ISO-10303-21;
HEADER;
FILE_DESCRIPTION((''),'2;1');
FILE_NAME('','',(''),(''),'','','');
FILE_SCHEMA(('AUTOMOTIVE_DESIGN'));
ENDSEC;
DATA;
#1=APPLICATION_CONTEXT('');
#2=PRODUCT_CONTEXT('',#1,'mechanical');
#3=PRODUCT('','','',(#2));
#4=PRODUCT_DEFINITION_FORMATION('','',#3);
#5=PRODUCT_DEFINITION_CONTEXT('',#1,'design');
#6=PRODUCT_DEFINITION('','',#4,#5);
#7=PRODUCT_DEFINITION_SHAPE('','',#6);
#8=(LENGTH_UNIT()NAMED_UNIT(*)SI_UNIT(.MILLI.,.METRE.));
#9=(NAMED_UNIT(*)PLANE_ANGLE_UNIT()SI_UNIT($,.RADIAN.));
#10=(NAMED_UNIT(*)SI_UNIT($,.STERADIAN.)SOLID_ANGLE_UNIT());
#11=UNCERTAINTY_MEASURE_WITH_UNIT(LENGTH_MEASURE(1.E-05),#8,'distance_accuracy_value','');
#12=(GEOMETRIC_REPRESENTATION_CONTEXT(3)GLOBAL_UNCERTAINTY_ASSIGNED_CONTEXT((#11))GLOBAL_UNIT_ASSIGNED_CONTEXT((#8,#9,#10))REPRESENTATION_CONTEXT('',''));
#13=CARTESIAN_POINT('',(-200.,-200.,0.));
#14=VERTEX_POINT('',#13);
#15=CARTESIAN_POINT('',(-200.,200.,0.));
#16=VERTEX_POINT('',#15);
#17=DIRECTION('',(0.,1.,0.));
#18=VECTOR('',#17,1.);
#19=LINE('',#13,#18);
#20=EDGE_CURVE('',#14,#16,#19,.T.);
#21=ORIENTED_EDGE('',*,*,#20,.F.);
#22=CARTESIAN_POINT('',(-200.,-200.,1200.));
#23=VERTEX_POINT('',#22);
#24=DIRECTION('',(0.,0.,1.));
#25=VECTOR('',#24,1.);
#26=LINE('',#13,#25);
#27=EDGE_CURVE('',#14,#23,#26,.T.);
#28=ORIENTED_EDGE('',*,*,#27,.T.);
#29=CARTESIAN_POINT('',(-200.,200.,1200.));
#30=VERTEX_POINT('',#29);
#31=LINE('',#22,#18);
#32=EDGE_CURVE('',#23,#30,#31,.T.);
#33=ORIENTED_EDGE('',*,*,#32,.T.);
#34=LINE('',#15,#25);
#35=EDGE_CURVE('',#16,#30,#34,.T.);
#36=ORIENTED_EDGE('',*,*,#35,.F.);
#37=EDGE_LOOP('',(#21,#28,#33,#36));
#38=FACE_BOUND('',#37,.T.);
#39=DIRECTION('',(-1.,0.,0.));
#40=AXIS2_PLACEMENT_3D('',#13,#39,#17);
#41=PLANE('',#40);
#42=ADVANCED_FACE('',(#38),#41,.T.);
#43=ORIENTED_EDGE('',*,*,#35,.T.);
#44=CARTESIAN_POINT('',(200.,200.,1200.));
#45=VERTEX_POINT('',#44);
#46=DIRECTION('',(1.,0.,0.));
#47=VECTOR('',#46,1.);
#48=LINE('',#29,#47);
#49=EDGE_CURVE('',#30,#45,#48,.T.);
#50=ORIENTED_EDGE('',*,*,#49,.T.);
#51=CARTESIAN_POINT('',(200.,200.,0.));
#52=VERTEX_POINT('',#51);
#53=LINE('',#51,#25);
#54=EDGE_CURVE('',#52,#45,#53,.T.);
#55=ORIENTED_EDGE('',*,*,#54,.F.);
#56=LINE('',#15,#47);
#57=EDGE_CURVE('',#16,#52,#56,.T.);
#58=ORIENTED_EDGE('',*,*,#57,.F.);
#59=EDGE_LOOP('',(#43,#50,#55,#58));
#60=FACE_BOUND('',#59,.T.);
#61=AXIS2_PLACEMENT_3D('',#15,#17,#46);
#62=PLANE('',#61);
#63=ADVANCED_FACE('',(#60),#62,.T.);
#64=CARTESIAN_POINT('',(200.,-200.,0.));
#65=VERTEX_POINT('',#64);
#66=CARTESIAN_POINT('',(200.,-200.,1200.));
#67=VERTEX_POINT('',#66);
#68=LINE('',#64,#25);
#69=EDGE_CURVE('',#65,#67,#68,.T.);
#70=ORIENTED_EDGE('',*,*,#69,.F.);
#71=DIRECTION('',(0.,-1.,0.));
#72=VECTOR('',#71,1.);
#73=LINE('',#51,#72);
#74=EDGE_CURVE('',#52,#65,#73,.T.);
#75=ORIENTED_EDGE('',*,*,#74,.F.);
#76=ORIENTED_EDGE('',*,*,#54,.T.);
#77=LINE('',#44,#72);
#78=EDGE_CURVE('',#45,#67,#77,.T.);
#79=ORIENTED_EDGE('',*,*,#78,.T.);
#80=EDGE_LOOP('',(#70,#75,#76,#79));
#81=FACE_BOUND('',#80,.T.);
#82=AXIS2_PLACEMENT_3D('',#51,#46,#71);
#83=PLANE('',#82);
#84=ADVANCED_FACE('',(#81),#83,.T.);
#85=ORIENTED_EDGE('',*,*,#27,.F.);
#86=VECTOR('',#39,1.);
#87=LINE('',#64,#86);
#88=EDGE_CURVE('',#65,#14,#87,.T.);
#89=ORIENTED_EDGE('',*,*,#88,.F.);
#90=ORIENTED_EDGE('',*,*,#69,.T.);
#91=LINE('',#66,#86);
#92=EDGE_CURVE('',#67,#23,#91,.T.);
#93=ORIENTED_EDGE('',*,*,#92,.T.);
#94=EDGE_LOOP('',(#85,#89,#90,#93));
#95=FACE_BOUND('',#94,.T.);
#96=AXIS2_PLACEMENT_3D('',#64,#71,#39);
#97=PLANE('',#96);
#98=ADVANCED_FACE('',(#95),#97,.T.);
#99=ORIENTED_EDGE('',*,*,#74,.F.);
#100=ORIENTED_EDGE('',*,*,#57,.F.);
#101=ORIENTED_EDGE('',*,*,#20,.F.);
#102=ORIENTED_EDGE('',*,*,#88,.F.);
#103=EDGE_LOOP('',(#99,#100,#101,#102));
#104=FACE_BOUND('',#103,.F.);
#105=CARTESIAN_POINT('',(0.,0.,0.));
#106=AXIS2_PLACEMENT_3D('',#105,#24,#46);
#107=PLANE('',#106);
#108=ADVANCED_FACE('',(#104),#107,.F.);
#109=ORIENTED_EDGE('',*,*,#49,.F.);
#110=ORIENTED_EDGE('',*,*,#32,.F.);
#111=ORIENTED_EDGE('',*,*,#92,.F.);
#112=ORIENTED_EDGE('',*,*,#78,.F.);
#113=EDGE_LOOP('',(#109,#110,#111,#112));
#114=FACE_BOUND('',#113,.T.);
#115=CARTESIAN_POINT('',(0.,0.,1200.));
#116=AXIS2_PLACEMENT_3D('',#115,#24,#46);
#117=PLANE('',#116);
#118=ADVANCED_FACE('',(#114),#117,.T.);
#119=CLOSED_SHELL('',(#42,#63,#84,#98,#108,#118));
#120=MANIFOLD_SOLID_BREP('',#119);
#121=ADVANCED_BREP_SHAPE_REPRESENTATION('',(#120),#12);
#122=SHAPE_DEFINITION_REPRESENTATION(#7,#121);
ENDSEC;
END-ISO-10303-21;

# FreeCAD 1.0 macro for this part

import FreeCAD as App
import Part
import Sketcher

V = App.Vector

doc = App.newDocument("Part")
body = doc.addObject("PartDesign::Body", "Body")

# Sketch on XY plane
sketch1 = body.newObject("Sketcher::SketchObject", "Sketch")
sketch1.AttachmentSupport = (doc.getObject("XY_Plane"), [""])
sketch1.MapMode = "FlatFace"
sketch1.addGeometry(Part.LineSegment(V(200, 200, 0), V(-200, 200, 0)), False)
sketch1.addGeometry(Part.LineSegment(V(-200, 200, 0), V(-200, -200, 0)), False)
sketch1.addGeometry(Part.LineSegment(V(-200, -200, 0), V(200, -200, 0)), False)
sketch1.addGeometry(Part.LineSegment(V(200, -200, 0), V(200, 200, 0)), False)
sketch1.addConstraint(Sketcher.Constraint("Coincident", 0, 2, 1, 1))
sketch1.addConstraint(Sketcher.Constraint("Coincident", 1, 2, 2, 1))
sketch1.addConstraint(Sketcher.Constraint("Coincident", 2, 2, 3, 1))
sketch1.addConstraint(Sketcher.Constraint("Coincident", 3, 2, 0, 1))
sketch1.addConstraint(Sketcher.Constraint("Horizontal", 0))
sketch1.addConstraint(Sketcher.Constraint("Vertical", 1))
sketch1.addConstraint(Sketcher.Constraint("Horizontal", 2))
sketch1.addConstraint(Sketcher.Constraint("Vertical", 3))
sketch1.addConstraint(Sketcher.Constraint("Symmetric", 0, 2, 2, 2, -1, 1))
sketch1.addConstraint(Sketcher.Constraint("Equal", 2, 1))
sketch1.addConstraint(Sketcher.Constraint("DistanceX", 0, 2, 0, 1, 400.0))
pad1 = body.newObject("PartDesign::Pad", "Pad")
pad1.Profile = sketch1
pad1.Length = 1200

doc.recompute()
